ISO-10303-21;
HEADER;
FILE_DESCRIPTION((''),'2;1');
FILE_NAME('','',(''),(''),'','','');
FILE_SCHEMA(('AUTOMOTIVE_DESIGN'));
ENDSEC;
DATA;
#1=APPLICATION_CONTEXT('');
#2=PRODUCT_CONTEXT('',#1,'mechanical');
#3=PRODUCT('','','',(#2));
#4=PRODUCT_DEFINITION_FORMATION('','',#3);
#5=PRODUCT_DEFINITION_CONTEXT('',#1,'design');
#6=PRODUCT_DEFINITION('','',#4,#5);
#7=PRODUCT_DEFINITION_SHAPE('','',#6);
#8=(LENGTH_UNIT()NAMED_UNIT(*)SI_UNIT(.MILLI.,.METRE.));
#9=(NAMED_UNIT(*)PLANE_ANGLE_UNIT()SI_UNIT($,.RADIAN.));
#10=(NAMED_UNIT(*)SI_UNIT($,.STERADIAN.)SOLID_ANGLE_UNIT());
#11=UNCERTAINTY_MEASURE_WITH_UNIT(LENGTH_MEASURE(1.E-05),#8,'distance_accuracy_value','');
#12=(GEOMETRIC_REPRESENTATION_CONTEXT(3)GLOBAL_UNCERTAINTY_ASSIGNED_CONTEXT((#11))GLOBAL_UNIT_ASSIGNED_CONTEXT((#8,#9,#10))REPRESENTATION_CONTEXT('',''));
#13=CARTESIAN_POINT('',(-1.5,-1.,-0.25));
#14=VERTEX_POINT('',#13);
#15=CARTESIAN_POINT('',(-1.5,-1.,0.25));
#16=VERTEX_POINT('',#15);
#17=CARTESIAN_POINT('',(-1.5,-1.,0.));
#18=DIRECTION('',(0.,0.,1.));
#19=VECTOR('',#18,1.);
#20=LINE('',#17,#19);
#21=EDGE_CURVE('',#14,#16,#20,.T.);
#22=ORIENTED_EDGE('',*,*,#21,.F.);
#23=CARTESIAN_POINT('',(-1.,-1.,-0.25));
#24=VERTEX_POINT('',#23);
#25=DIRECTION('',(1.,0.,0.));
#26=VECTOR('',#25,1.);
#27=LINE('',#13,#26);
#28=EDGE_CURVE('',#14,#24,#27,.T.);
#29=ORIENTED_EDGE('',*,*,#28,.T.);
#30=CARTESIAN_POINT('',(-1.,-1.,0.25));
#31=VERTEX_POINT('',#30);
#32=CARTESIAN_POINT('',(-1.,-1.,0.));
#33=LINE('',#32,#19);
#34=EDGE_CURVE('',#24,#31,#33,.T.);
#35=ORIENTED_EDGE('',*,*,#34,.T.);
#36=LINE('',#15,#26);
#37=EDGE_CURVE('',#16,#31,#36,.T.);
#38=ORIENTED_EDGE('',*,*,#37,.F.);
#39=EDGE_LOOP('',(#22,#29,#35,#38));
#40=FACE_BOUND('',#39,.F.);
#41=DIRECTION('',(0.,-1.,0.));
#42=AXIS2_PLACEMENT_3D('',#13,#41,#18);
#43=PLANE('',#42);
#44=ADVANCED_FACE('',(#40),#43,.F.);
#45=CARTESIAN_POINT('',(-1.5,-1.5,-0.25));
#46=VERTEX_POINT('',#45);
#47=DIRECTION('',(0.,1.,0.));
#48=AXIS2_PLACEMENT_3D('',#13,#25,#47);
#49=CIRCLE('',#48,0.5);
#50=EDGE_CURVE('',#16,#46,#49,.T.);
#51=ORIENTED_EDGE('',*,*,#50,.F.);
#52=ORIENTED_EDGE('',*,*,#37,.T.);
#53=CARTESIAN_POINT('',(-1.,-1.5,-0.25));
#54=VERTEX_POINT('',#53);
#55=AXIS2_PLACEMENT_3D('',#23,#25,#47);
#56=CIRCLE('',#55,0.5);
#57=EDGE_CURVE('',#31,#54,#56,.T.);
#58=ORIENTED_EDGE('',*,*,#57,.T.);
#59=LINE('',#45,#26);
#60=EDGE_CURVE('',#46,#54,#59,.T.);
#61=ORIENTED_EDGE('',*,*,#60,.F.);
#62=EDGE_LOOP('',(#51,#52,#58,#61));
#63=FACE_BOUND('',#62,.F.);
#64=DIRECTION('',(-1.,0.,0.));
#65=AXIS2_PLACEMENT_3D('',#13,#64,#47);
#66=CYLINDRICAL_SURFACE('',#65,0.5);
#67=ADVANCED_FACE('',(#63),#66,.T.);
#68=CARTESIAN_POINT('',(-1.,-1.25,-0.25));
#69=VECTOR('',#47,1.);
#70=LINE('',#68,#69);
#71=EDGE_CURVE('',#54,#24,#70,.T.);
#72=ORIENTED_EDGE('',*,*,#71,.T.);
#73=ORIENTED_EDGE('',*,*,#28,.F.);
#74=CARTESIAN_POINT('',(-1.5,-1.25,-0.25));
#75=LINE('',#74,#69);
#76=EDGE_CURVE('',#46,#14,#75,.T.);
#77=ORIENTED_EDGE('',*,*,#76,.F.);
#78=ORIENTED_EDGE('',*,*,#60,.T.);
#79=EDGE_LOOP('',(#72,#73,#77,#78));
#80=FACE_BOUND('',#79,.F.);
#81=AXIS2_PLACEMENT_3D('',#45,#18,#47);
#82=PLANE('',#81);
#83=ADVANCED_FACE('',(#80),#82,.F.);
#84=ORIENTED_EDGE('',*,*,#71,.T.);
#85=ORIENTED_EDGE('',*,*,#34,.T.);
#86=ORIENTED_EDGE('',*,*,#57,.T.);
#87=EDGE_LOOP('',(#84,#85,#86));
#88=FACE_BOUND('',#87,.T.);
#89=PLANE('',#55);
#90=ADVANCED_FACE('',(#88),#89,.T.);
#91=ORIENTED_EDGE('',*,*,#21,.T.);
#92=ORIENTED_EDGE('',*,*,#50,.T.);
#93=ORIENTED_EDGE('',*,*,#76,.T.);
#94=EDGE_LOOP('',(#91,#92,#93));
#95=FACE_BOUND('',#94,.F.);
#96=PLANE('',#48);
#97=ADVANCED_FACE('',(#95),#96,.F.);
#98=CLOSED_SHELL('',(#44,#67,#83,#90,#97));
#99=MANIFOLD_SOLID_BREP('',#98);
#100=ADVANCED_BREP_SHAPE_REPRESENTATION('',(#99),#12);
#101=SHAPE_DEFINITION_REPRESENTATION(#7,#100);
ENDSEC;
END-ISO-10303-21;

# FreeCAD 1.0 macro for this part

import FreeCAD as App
import Part
import Sketcher
Q = App.Units.Quantity


def add_polygon(sketch, points):
    """Adds a closed chain of lines whose ends are joined by coincident constraints."""
    first, n = sketch.GeometryCount, len(points)
    for a, b in zip(points, points[1:] + points[:1]):
        sketch.addGeometry(Part.LineSegment(App.Vector(*a, 0), App.Vector(*b, 0)), False)
    for i in range(n):
        sketch.addConstraint(Sketcher.Constraint("Coincident", first + i, 2, first + (i + 1) % n, 1))

doc = App.newDocument("Part")
body = doc.addObject("PartDesign::Body", "Body")

sketch1 = body.newObject("Sketcher::SketchObject", "Sketch")
sketch1.AttachmentSupport = (doc.getObject("YZ_Plane"), [""])
sketch1.MapMode = "FlatFace"
sketch1.AttachmentOffset = App.Placement(App.Vector(0, 0, -1.5), App.Rotation())
add_polygon(sketch1, [(-1.5, 0.2), (-1.5, -0.2), (-1, -0.2), (-1, 0.2)])
sketch1.addConstraint([
    Sketcher.Constraint("Vertical", 0),
    Sketcher.Constraint("Horizontal", 1),
    Sketcher.Constraint("Vertical", 2),
    Sketcher.Constraint("Horizontal", 3),
    Sketcher.Constraint("Equal", 3, 0),
    Sketcher.Constraint("DistanceX", 1, 1, 1, 2, Q("0.5 mm")),
    Sketcher.Constraint("DistanceX", 1, 2, -1, 1, Q("1 mm")),
    Sketcher.Constraint("DistanceY", 0, 2, -1, 1, Q("0.25 mm")),
])
pad1 = body.newObject("PartDesign::Pad", "Pad")
pad1.Profile = sketch1
pad1.Length = 0.5
body2 = doc.addObject("PartDesign::Body", "Body001")

sketch2 = body2.newObject("Sketcher::SketchObject", "Sketch001")
sketch2.AttachmentSupport = (doc.getObject("YZ_Plane001"), [""])
sketch2.MapMode = "FlatFace"
sketch2.AttachmentOffset = App.Placement(App.Vector(0, 0, -1.5), App.Rotation())
sketch2.addGeometry(Part.Circle(App.Vector(-1, -0.2, 0), App.Vector(0, 0, 1), 0.5), False)
sketch2.addConstraint([
    Sketcher.Constraint("Diameter", 0, Q("1 mm")),
    Sketcher.Constraint("DistanceX", 0, 3, -1, 1, Q("1 mm")),
    Sketcher.Constraint("DistanceY", 0, 3, -1, 1, Q("0.25 mm")),
])
pad2 = body2.newObject("PartDesign::Pad", "Pad001")
pad2.Profile = sketch2
pad2.Length = 0.5
doc.recompute()

boolean = body2.newObject("PartDesign::Boolean", "Boolean")
boolean.Type = "Common"
boolean.addObjects([body])

doc.recompute()
